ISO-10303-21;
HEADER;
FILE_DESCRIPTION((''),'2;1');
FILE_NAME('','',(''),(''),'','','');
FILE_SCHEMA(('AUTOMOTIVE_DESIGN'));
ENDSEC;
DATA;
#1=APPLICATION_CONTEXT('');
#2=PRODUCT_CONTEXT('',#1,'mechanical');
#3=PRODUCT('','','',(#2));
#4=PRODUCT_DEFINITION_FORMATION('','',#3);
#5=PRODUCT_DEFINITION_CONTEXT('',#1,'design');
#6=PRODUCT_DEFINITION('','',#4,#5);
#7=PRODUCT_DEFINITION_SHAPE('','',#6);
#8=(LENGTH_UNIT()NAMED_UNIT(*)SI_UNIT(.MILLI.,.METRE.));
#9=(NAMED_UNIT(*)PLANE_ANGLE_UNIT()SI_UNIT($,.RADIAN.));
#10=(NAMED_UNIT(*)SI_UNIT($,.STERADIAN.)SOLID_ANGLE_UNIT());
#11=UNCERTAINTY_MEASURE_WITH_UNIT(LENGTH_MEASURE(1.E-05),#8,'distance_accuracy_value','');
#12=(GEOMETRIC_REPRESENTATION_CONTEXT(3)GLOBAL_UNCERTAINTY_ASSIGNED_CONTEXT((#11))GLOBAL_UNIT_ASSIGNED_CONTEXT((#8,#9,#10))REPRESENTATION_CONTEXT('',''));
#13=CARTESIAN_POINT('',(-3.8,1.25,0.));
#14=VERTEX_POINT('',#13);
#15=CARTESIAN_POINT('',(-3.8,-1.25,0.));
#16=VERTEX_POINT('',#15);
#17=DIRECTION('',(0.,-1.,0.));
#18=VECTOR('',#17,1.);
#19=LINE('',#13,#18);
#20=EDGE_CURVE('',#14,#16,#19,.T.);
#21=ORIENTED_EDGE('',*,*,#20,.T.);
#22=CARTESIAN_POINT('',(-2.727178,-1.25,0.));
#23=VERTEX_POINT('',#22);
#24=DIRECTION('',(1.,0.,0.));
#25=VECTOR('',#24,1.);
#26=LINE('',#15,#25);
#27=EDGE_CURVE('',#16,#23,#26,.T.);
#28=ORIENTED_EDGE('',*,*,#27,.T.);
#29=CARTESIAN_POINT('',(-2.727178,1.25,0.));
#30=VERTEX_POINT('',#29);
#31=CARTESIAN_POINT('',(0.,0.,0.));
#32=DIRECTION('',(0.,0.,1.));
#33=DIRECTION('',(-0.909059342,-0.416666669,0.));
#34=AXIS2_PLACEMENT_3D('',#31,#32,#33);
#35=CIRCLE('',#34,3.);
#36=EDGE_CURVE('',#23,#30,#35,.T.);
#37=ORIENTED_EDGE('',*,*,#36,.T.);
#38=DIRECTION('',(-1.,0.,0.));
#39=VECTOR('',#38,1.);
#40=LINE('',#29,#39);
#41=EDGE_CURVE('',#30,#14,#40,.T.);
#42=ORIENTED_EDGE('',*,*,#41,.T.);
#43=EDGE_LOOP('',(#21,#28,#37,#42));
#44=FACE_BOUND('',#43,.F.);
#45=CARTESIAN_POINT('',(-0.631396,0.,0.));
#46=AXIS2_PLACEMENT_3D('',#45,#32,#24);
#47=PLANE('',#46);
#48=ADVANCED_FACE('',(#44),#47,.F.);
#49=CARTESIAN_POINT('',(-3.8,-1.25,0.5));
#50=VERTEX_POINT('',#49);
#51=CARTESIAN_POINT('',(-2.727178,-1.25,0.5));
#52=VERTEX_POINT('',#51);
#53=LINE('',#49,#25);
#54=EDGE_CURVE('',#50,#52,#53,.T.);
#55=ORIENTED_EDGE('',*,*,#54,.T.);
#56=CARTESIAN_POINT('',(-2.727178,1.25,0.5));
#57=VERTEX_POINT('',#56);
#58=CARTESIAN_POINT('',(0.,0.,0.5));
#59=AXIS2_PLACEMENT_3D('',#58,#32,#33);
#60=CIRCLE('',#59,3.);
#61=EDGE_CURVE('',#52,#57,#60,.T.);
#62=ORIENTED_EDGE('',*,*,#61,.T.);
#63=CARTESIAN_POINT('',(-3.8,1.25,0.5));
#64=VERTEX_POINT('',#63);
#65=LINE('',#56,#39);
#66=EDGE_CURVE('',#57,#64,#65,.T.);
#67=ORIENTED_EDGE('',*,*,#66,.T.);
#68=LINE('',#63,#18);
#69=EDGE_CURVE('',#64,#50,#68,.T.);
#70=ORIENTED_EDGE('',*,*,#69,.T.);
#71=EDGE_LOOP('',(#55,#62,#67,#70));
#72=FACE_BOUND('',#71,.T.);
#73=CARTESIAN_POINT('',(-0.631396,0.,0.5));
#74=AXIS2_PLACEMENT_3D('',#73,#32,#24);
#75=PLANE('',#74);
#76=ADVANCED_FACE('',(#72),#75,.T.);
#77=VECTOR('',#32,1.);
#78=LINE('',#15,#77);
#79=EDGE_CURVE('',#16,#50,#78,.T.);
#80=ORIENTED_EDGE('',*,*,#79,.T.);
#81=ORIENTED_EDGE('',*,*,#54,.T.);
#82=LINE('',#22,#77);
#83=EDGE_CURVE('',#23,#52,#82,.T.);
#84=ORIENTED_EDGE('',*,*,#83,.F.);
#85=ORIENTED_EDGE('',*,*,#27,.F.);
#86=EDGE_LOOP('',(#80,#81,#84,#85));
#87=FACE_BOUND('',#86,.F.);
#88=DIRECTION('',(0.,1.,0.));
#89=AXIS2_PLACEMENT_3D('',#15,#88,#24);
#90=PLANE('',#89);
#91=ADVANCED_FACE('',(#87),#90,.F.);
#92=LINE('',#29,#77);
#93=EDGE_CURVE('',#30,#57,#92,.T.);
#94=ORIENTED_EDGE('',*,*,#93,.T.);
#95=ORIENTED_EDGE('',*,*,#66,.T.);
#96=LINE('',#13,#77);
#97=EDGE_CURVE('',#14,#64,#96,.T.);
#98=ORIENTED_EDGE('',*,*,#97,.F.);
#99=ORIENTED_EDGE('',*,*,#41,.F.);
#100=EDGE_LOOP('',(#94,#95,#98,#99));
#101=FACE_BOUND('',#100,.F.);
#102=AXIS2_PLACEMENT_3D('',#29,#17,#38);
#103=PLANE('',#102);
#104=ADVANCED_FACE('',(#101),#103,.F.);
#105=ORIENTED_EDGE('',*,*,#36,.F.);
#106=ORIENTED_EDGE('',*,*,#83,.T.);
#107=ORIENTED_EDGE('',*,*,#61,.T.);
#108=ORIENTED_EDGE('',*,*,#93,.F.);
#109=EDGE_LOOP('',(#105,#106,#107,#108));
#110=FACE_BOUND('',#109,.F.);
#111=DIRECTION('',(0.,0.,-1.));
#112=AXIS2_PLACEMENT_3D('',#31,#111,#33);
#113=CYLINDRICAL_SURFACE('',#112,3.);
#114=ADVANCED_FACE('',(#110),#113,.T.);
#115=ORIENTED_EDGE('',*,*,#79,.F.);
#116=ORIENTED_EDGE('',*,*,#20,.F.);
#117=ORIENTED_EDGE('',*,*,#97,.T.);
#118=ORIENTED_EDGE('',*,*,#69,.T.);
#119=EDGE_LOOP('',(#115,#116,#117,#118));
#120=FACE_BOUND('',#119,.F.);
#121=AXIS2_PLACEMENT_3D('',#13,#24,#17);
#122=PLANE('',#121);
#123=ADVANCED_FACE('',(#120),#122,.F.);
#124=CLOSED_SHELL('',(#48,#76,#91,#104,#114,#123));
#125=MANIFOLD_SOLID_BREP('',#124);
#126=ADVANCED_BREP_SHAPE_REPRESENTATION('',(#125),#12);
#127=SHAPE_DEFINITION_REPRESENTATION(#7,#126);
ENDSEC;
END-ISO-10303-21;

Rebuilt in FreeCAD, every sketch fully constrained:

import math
import FreeCAD as App
import Part
import Sketcher

V = App.Vector
Q = App.Units.Quantity

doc = App.newDocument("Part")
body = doc.addObject("PartDesign::Body", "Body")

# Sketch on XY plane
sketch1 = body.newObject("Sketcher::SketchObject", "Sketch")
sketch1.AttachmentSupport = (doc.getObject("XY_Plane"), [""])
sketch1.MapMode = "FlatFace"
sketch1.addGeometry([
    Part.ArcOfCircle(Part.Circle(V(0, 0, 0), V(0, 0, 1), 3), math.radians(-155), math.radians(155)),
    Part.LineSegment(V(-2.7, 1.2, 0), V(-3.8, 1.2, 0)),
    Part.LineSegment(V(-3.8, 1.2, 0), V(-3.8, -1.2, 0)),
    Part.LineSegment(V(-3.8, -1.2, 0), V(-2.7, -1.2, 0)),
], False)
sketch1.addConstraint([
    Sketcher.Constraint("Coincident", 0, 2, 1, 1),
    Sketcher.Constraint("Coincident", 1, 2, 2, 1),
    Sketcher.Constraint("Coincident", 2, 2, 3, 1),
    Sketcher.Constraint("Coincident", 3, 2, 0, 1),
    Sketcher.Constraint("Horizontal", 1),
    Sketcher.Constraint("Vertical", 2),
    Sketcher.Constraint("Horizontal", 3),
    Sketcher.Constraint("Coincident", 0, 3, -1, 1),
    Sketcher.Constraint("Vertical", 0, 2, 3, 2),
    Sketcher.Constraint("Radius", 0, Q("3 mm")),
    Sketcher.Constraint("DistanceY", 2, 2, 2, 1, Q("2.5 mm")),
    Sketcher.Constraint("DistanceX", 1, 2, -1, 1, Q("3.8 mm")),
])
pad1 = body.newObject("PartDesign::Pad", "Pad")
pad1.Profile = sketch1
pad1.Length = 0.5

doc.recompute()
